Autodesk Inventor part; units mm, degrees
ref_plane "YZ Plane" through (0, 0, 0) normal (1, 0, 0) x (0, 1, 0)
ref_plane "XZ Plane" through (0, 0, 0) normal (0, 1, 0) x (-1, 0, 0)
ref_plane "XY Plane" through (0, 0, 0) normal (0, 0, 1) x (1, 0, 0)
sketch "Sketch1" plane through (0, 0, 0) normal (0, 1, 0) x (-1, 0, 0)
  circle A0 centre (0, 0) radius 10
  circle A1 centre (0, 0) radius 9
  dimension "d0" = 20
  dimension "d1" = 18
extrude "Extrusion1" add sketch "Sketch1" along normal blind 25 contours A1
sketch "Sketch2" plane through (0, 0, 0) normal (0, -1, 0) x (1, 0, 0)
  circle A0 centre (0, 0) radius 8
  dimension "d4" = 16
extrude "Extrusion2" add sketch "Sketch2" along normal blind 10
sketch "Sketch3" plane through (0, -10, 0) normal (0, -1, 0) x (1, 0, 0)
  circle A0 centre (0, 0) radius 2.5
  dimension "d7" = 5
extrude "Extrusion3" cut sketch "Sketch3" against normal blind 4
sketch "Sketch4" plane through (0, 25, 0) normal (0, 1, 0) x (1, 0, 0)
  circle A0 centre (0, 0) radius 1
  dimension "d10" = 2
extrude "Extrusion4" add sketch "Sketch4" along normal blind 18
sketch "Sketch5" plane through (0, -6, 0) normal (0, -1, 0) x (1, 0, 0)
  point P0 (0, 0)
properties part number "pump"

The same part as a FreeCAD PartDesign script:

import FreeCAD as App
import Part
import Sketcher
from FreeCAD import Vector

doc = App.newDocument("Part")
body = doc.addObject("PartDesign::Body", "Body")

# Sketch on XZ plane
sketch1 = doc.addObject("Sketcher::SketchObject", "Sketch")
body.addObject(sketch1)
sketch1.AttachmentSupport = (doc.XZ_Plane, [""])
sketch1.MapMode = "FlatFace"
sketch1.addGeometry(Part.Circle(Vector(0, 0, 0), Vector(0, 0, 1), 9), False)
sketch1.addConstraint([
    Sketcher.Constraint("Coincident", 0, 3, -1, 1),
    Sketcher.Constraint("Diameter", 0, 18.0),
])
pad1 = doc.addObject("PartDesign::Pad", "Pad")
body.addObject(pad1)
pad1.Profile = sketch1
pad1.Length = 25
pad1.Reversed = True

# Sketch on XZ plane
sketch2 = doc.addObject("Sketcher::SketchObject", "Sketch001")
body.addObject(sketch2)
sketch2.AttachmentSupport = (doc.XZ_Plane, [""])
sketch2.MapMode = "FlatFace"
sketch2.addGeometry(Part.Circle(Vector(0, 0, 0), Vector(0, 0, 1), 8), False)
sketch2.addConstraint([
    Sketcher.Constraint("Coincident", 0, 3, -1, 1),
    Sketcher.Constraint("Diameter", 0, 16.0),
])
pad2 = doc.addObject("PartDesign::Pad", "Pad001")
body.addObject(pad2)
pad2.Profile = sketch2
pad2.Length = 10

# Sketch on XZ plane
sketch3 = doc.addObject("Sketcher::SketchObject", "Sketch002")
body.addObject(sketch3)
sketch3.AttachmentSupport = (doc.XZ_Plane, [""])
sketch3.MapMode = "FlatFace"
sketch3.AttachmentOffset = App.Placement(Vector(0, 0, 10), App.Rotation())
sketch3.addGeometry(Part.Circle(Vector(0, 0, 0), Vector(0, 0, 1), 2.5), False)
sketch3.addConstraint([
    Sketcher.Constraint("Coincident", 0, 3, -1, 1),
    Sketcher.Constraint("Diameter", 0, 5.0),
])
pocket1 = doc.addObject("PartDesign::Pocket", "Pocket")
body.addObject(pocket1)
pocket1.Profile = sketch3
pocket1.Length = 4

# Sketch on XZ plane
sketch4 = doc.addObject("Sketcher::SketchObject", "Sketch003")
body.addObject(sketch4)
sketch4.AttachmentSupport = (doc.XZ_Plane, [""])
sketch4.MapMode = "FlatFace"
sketch4.AttachmentOffset = App.Placement(Vector(0, 0, -25), App.Rotation())
sketch4.addGeometry(Part.Circle(Vector(0, 0, 0), Vector(0, 0, 1), 1), False)
sketch4.addConstraint([
    Sketcher.Constraint("Coincident", 0, 3, -1, 1),
    Sketcher.Constraint("Diameter", 0, 2.0),
])
pad3 = doc.addObject("PartDesign::Pad", "Pad002")
body.addObject(pad3)
pad3.Profile = sketch4
pad3.Length = 18
pad3.Reversed = True

doc.recompute()
